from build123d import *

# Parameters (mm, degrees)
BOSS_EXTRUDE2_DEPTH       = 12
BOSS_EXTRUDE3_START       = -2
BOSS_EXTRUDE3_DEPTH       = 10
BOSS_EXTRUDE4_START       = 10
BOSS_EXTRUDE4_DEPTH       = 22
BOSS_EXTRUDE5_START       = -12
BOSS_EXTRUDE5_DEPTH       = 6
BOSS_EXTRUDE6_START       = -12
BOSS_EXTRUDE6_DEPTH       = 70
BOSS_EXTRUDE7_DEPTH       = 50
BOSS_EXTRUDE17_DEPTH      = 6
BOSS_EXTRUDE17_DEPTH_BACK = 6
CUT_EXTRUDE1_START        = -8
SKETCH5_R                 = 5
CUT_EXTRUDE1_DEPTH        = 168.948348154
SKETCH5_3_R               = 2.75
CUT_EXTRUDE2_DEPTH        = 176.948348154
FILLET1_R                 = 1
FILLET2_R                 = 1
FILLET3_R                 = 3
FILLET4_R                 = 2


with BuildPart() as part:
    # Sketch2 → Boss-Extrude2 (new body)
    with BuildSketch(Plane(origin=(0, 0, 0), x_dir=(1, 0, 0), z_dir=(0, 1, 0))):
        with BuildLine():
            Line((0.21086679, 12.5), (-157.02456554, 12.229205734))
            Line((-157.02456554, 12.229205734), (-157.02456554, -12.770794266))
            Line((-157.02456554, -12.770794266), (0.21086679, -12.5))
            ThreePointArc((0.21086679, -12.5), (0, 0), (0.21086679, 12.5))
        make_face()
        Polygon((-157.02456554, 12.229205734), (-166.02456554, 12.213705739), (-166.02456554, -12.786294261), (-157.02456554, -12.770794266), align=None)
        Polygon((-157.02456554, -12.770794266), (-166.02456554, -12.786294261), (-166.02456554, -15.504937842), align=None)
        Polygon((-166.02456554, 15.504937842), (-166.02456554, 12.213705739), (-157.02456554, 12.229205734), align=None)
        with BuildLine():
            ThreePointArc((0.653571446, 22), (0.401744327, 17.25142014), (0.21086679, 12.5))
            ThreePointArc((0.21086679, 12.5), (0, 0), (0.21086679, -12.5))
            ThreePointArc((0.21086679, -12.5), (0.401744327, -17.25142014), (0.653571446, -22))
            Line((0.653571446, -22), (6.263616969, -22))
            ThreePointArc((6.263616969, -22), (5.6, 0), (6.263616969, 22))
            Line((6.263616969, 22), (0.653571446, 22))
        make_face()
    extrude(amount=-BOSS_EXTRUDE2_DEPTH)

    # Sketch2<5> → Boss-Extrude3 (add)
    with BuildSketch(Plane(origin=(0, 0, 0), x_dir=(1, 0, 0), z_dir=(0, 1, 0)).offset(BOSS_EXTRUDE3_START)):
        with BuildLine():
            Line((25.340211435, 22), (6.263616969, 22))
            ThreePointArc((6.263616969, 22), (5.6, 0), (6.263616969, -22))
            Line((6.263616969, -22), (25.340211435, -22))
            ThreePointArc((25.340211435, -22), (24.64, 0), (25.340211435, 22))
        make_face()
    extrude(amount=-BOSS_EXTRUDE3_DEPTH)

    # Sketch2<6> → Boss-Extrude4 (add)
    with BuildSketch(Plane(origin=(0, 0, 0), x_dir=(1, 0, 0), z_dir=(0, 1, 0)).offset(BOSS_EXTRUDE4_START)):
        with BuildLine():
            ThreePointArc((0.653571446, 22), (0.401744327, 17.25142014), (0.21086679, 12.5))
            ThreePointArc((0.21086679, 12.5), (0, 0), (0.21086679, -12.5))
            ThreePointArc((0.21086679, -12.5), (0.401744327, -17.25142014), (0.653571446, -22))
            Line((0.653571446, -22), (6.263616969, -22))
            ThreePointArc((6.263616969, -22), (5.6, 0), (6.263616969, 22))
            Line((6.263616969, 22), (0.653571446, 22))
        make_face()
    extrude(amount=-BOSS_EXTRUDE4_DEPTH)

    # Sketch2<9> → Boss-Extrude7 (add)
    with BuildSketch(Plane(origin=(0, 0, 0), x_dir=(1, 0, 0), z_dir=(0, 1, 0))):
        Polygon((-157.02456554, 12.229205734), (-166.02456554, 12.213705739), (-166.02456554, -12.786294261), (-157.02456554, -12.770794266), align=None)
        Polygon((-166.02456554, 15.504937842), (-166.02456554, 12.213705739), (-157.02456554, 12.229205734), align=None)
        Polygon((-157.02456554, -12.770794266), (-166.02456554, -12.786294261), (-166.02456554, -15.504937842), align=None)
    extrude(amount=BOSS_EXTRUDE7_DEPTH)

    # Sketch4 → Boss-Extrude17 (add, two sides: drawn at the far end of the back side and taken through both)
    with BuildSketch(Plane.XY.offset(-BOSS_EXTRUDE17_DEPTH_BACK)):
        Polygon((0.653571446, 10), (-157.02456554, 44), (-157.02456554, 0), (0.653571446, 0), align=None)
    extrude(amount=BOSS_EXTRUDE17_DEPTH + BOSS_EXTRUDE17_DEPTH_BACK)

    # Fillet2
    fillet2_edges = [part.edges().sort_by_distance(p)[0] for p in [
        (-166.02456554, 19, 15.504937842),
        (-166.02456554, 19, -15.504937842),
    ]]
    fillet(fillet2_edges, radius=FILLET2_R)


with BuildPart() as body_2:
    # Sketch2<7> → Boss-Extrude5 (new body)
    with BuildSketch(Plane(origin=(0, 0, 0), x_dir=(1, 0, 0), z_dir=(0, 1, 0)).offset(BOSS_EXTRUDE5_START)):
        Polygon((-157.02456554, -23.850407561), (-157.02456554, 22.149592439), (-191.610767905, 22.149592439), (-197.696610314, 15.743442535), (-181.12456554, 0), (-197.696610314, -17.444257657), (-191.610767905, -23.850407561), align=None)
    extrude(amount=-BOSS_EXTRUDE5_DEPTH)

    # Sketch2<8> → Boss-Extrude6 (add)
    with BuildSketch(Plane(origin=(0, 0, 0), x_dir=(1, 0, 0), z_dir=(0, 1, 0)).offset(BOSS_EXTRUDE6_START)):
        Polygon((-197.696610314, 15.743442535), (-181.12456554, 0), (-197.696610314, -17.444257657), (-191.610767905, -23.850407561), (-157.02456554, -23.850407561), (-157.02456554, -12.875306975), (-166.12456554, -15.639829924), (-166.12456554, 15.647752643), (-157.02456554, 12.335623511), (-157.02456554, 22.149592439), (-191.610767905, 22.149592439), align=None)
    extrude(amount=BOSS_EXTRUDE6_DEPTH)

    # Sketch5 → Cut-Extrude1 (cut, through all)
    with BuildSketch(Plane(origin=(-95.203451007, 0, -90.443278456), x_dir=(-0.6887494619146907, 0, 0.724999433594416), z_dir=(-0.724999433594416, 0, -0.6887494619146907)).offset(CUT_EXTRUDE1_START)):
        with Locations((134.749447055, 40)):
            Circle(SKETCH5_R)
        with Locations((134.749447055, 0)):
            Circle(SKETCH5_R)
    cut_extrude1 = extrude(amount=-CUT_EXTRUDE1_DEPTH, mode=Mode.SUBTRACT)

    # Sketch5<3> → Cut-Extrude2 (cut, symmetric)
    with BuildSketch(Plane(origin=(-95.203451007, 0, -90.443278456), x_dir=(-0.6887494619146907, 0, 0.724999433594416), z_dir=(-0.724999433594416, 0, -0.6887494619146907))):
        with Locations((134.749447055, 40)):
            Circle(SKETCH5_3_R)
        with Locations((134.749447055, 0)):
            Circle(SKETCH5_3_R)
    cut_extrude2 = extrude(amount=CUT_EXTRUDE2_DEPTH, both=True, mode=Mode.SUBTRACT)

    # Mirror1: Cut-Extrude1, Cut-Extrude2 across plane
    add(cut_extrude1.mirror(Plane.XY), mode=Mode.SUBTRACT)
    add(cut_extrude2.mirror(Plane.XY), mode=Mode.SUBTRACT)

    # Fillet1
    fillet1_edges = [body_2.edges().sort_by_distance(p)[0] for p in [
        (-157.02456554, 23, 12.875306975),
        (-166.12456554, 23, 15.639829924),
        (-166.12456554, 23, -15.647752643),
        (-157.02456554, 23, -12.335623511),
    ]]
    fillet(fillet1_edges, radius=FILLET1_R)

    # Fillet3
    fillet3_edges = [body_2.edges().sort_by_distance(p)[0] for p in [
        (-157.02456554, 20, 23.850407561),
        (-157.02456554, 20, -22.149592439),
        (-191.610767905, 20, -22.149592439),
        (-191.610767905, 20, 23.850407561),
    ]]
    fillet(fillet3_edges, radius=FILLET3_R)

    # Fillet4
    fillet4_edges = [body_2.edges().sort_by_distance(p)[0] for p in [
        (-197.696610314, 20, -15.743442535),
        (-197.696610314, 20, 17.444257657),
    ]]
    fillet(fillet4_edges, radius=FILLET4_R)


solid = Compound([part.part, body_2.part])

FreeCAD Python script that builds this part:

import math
import FreeCAD as App
import Part
import Sketcher
Q = App.Units.Quantity


def edges_at(feature, points):
    """Names of the edges that pass closest to the given points."""
    edges = feature.Shape.Edges
    near = lambda p: min(range(len(edges)), key=lambda i: edges[i].distToShape(Part.Vertex(*p))[0])
    return sorted({f"Edge{near(p) + 1}" for p in points})

doc = App.newDocument("Part")
body = doc.addObject("PartDesign::Body", "Body")

# Sketch on XZ plane
sketch1 = body.newObject("Sketcher::SketchObject", "Sketch")
sketch1.AttachmentSupport = (doc.getObject("XZ_Plane"), [""])
sketch1.MapMode = "FlatFace"
sketch1.addGeometry([
    Part.LineSegment(App.Vector(0, -12, 0), App.Vector(-157, -12, 0)),  # 0
    Part.LineSegment(App.Vector(-157, -12, 0), App.Vector(-166, -16, 0)),  # 1
    Part.LineSegment(App.Vector(-166, -16, 0), App.Vector(-166, 16, 0)),  # 2
    Part.LineSegment(App.Vector(-166, 16, 0), App.Vector(-157, 13, 0)),  # 3
    Part.LineSegment(App.Vector(-157, 13, 0), App.Vector(0, 12, 0)),  # 4
    Part.ArcOfCircle(Part.Circle(App.Vector(371, 0, 0), App.Vector(0, 0, 1), 371), math.radians(176.6), math.radians(178.07)),  # 5
    Part.LineSegment(App.Vector(1, 22, 0), App.Vector(6, 22, 0)),  # 6
    Part.ArcOfCircle(Part.Circle(App.Vector(371, 0, 0), App.Vector(0, 0, 1), 365), math.radians(176.54), math.radians(183.46)),  # 7
    Part.LineSegment(App.Vector(6, -22, 0), App.Vector(1, -22, 0)),  # 8
    Part.ArcOfCircle(Part.Circle(App.Vector(371, 0, 0), App.Vector(0, 0, 1), 371), math.radians(-178.07), math.radians(-176.6)),  # 9
], False)
sketch1.addConstraint([
    Sketcher.Constraint("Coincident", 0, 2, 1, 1),
    Sketcher.Constraint("Coincident", 1, 2, 2, 1),
    Sketcher.Constraint("Coincident", 2, 2, 3, 1),
    Sketcher.Constraint("Coincident", 3, 2, 4, 1),
    Sketcher.Constraint("Coincident", 4, 2, 5, 2),
    Sketcher.Constraint("Coincident", 5, 1, 6, 1),
    Sketcher.Constraint("Coincident", 6, 2, 7, 1),
    Sketcher.Constraint("Coincident", 7, 2, 8, 1),
    Sketcher.Constraint("Coincident", 8, 2, 9, 2),
    Sketcher.Constraint("Coincident", 9, 1, 0, 1),
    Sketcher.Constraint("Vertical", 2),
    Sketcher.Constraint("Horizontal", 6),
    Sketcher.Constraint("Horizontal", 8),
    Sketcher.Constraint("Coincident", 7, 3, 5, 3),
    Sketcher.Constraint("Coincident", 9, 3, 5, 3),
    Sketcher.Constraint("Equal", 5, 9),
    Sketcher.Constraint("Symmetric", 6, 2, 7, 2, -1),
    Sketcher.Constraint("Parallel", 0, 4),
    Sketcher.Constraint("Vertical", 0, 2, 3, 2),
    Sketcher.Constraint("Vertical", 4, 2, 9, 1),
    Sketcher.Constraint("Radius", 7, 365.0),
    Sketcher.Constraint("Angle", 1, Q("-160 deg")),
    Sketcher.Constraint("DistanceY", -1, 1, 6, 2, 22.0),
    Sketcher.Constraint("DistanceX", 1, 2, 0, 2, 9.0),
    Sketcher.Constraint("DistanceY", 0, 2, 3, 2, 25.0),
    Sketcher.Constraint("DistanceX", -1, 1, 7, 3, 370.6),
    Sketcher.Constraint("Radius", 5, 370.599996),
    Sketcher.Constraint("DistanceY", 2, 1, 2, 2, 31.009876),
    Sketcher.Constraint("DistanceX", 0, 2, 9, 3, 527.624562),
    Sketcher.Constraint("DistanceY", 1, 2, 5, 3, 15.504938),
])
pad1 = body.newObject("PartDesign::Pad", "Pad")
pad1.Profile = sketch1
pad1.Length = 12

# Sketch on XZ plane
sketch2 = body.newObject("Sketcher::SketchObject", "Sketch001")
sketch2.AttachmentSupport = (doc.getObject("XZ_Plane"), [""])
sketch2.MapMode = "FlatFace"
sketch2.AttachmentOffset = App.Placement(App.Vector(0, 0, 2), App.Rotation())
sketch2.addGeometry([
    Part.LineSegment(App.Vector(25, -22, 0), App.Vector(6, -22, 0)),
    Part.ArcOfCircle(Part.Circle(App.Vector(371, 0, 0), App.Vector(0, 0, 1), 365), math.radians(176.54), math.radians(183.46)),
    Part.LineSegment(App.Vector(6, 22, 0), App.Vector(25, 22, 0)),
    Part.ArcOfCircle(Part.Circle(App.Vector(371, 0, 0), App.Vector(0, 0, 1), 346), math.radians(176.35), math.radians(183.65)),
], False)
sketch2.addConstraint([
    Sketcher.Constraint("Coincident", 0, 2, 1, 2),
    Sketcher.Constraint("Coincident", 1, 1, 2, 1),
    Sketcher.Constraint("Coincident", 2, 2, 3, 1),
    Sketcher.Constraint("Coincident", 3, 2, 0, 1),
    Sketcher.Constraint("Horizontal", 0),
    Sketcher.Constraint("Horizontal", 2),
    Sketcher.Constraint("Coincident", 3, 3, 1, 3),
    Sketcher.Constraint("Symmetric", 0, 2, 1, 1, -1),
    Sketcher.Constraint("Radius", 1, 365.0),
    Sketcher.Constraint("Radius", 3, 345.96),
    Sketcher.Constraint("DistanceY", 0, 2, -1, 1, 22.0),
    Sketcher.Constraint("DistanceX", -1, 1, 1, 3, 370.6),
])
pad2 = body.newObject("PartDesign::Pad", "Pad001")
pad2.Profile = sketch2
pad2.Length = 10

# Sketch on XZ plane
sketch3 = body.newObject("Sketcher::SketchObject", "Sketch002")
sketch3.AttachmentSupport = (doc.getObject("XZ_Plane"), [""])
sketch3.MapMode = "FlatFace"
sketch3.AttachmentOffset = App.Placement(App.Vector(0, 0, -10), App.Rotation())
sketch3.addGeometry([
    Part.ArcOfCircle(Part.Circle(App.Vector(371, 0, 0), App.Vector(0, 0, 1), 371), math.radians(-178.07), math.radians(-176.6)),  # 0
    Part.ArcOfCircle(Part.Circle(App.Vector(371, 0, 0), App.Vector(0, 0, 1), 371), math.radians(178.07), math.radians(181.93)),  # 1
    Part.ArcOfCircle(Part.Circle(App.Vector(371, 0, 0), App.Vector(0, 0, 1), 371), math.radians(176.6), math.radians(178.07)),  # 2
    Part.LineSegment(App.Vector(1, 22, 0), App.Vector(6, 22, 0)),  # 3
    Part.ArcOfCircle(Part.Circle(App.Vector(371, 0, 0), App.Vector(0, 0, 1), 365), math.radians(176.54), math.radians(183.46)),  # 4
    Part.LineSegment(App.Vector(6, -22, 0), App.Vector(1, -22, 0)),  # 5
], False)
sketch3.addConstraint([
    Sketcher.Constraint("Tangent", 0, 1, 1, 2),
    Sketcher.Constraint("Tangent", 1, 1, 2, 2),
    Sketcher.Constraint("Coincident", 2, 1, 3, 1),
    Sketcher.Constraint("Coincident", 3, 2, 4, 1),
    Sketcher.Constraint("Coincident", 4, 2, 5, 1),
    Sketcher.Constraint("Coincident", 5, 2, 0, 2),
    Sketcher.Constraint("Horizontal", 3),
    Sketcher.Constraint("Horizontal", 5),
    Sketcher.Constraint("Coincident", 2, 3, 0, 3),
    Sketcher.Constraint("Coincident", 4, 3, 0, 3),
    Sketcher.Constraint("PointOnObject", 0, 3, -1),
    Sketcher.Constraint("Vertical", 0, 1, 1, 1),
    Sketcher.Constraint("Vertical", 3, 2, 4, 2),
    Sketcher.Constraint("Radius", 4, 365.0),
    Sketcher.Constraint("Radius", 1, 370.6),
    Sketcher.Constraint("DistanceY", -1, 1, 3, 2, 22.0),
    Sketcher.Constraint("DistanceY", 0, 1, 1, 1, 25.0),
    Sketcher.Constraint("DistanceX", -1, 1, 1, 3, 370.6),
])
pad3 = body.newObject("PartDesign::Pad", "Pad002")
pad3.Profile = sketch3
pad3.Length = 22

# Sketch on XZ plane
sketch4 = body.newObject("Sketcher::SketchObject", "Sketch003")
sketch4.AttachmentSupport = (doc.getObject("XZ_Plane"), [""])
sketch4.MapMode = "FlatFace"
sketch4.addGeometry([
    Part.LineSegment(App.Vector(-157, 13, 0), App.Vector(-157, -12, 0)),
    Part.LineSegment(App.Vector(-157, -12, 0), App.Vector(-166, -16, 0)),
    Part.LineSegment(App.Vector(-166, -16, 0), App.Vector(-166, 16, 0)),
    Part.LineSegment(App.Vector(-166, 16, 0), App.Vector(-157, 13, 0)),
], False)
sketch4.addConstraint([
    Sketcher.Constraint("Coincident", 0, 2, 1, 1),
    Sketcher.Constraint("Coincident", 1, 2, 2, 1),
    Sketcher.Constraint("Coincident", 2, 2, 3, 1),
    Sketcher.Constraint("Coincident", 3, 2, 0, 1),
    Sketcher.Constraint("Vertical", 0),
    Sketcher.Constraint("Vertical", 2),
    Sketcher.Constraint("DistanceY", 0, 2, 0, 1, 25.0),
    Sketcher.Constraint("Angle", 1, Q("-160 deg")),
    Sketcher.Constraint("DistanceX", 1, 2, 0, 2, 9.0),
    Sketcher.Constraint("DistanceY", 2, 1, 2, 2, 31.009876),
    Sketcher.Constraint("DistanceX", 0, 2, -1, 1, 157.024566),
    Sketcher.Constraint("DistanceY", 0, 2, -1, 1, 12.229206),
])
pad4 = body.newObject("PartDesign::Pad", "Pad003")
pad4.Profile = sketch4
pad4.Length = 50
pad4.Reversed = True

# Sketch on XY plane
sketch5 = body.newObject("Sketcher::SketchObject", "Sketch004")
sketch5.AttachmentSupport = (doc.getObject("XY_Plane"), [""])
sketch5.MapMode = "FlatFace"
sketch5.addGeometry([
    Part.LineSegment(App.Vector(1, 10, 0), App.Vector(-157, 44, 0)),
    Part.LineSegment(App.Vector(-157, 44, 0), App.Vector(-157, 0, 0)),
    Part.LineSegment(App.Vector(-157, 0, 0), App.Vector(1, 0, 0)),
    Part.LineSegment(App.Vector(1, 0, 0), App.Vector(1, 10, 0)),
], False)
sketch5.addConstraint([
    Sketcher.Constraint("Coincident", 0, 2, 1, 1),
    Sketcher.Constraint("Coincident", 1, 2, 2, 1),
    Sketcher.Constraint("Coincident", 2, 2, 3, 1),
    Sketcher.Constraint("Coincident", 3, 2, 0, 1),
    Sketcher.Constraint("Vertical", 1),
    Sketcher.Constraint("Horizontal", 2),
    Sketcher.Constraint("Vertical", 3),
    Sketcher.Constraint("PointOnObject", 1, 2, -1),
    Sketcher.Constraint("DistanceY", 1, 2, 1, 1, 44.0),
    Sketcher.Constraint("DistanceY", 3, 1, 3, 2, 10.0),
    Sketcher.Constraint("DistanceX", 2, 1, 2, 2, 157.678137),
    Sketcher.Constraint("DistanceX", -1, 1, 2, 2, 0.653571),
])
pad5 = body.newObject("PartDesign::Pad", "Pad004")
pad5.Profile = sketch5
pad5.Type = "TwoLengths"
pad5.Length = 6
pad5.Length2 = 6
doc.recompute()

fillet = body.newObject("PartDesign::Fillet", "Fillet")
fillet.Base = (pad5, edges_at(pad5, [(-166.025, 19, 15.505), (-166.025, 19, -15.505)]))
fillet.Radius = 1
body2 = doc.addObject("PartDesign::Body", "Body001")

# Sketch on XZ plane
sketch6 = body2.newObject("Sketcher::SketchObject", "Sketch005")
sketch6.AttachmentSupport = (doc.getObject("XZ_Plane001"), [""])
sketch6.MapMode = "FlatFace"
sketch6.AttachmentOffset = App.Placement(App.Vector(0, 0, 12), App.Rotation())
sketch6.addGeometry([
    Part.LineSegment(App.Vector(-157, 24, 0), App.Vector(-157, -22, 0)),  # 0
    Part.LineSegment(App.Vector(-157, -22, 0), App.Vector(-192, -22, 0)),  # 1
    Part.LineSegment(App.Vector(-192, -22, 0), App.Vector(-198, -16, 0)),  # 2
    Part.LineSegment(App.Vector(-198, -16, 0), App.Vector(-181, 0, 0)),  # 3
    Part.LineSegment(App.Vector(-181, 0, 0), App.Vector(-198, 17, 0)),  # 4
    Part.LineSegment(App.Vector(-198, 17, 0), App.Vector(-192, 24, 0)),  # 5
    Part.LineSegment(App.Vector(-192, 24, 0), App.Vector(-157, 24, 0)),  # 6
], False)
sketch6.addConstraint([
    Sketcher.Constraint("Coincident", 0, 2, 1, 1),
    Sketcher.Constraint("Coincident", 1, 2, 2, 1),
    Sketcher.Constraint("Coincident", 2, 2, 3, 1),
    Sketcher.Constraint("Coincident", 3, 2, 4, 1),
    Sketcher.Constraint("Coincident", 4, 2, 5, 1),
    Sketcher.Constraint("Coincident", 5, 2, 6, 1),
    Sketcher.Constraint("Coincident", 6, 2, 0, 1),
    Sketcher.Constraint("Vertical", 0),
    Sketcher.Constraint("Horizontal", 1),
    Sketcher.Constraint("Horizontal", 6),
    Sketcher.Constraint("PointOnObject", 3, 2, -1),
    Sketcher.Constraint("Perpendicular", 2, 3),
    Sketcher.Constraint("Perpendicular", 3, 4),
    Sketcher.Constraint("Vertical", 2, 2, 4, 2),
    Sketcher.Constraint("Vertical", 1, 2, 5, 2),
    Sketcher.Constraint("Equal", 2, 5),
    Sketcher.Constraint("DistanceY", 0, 2, 0, 1, 46.0),
    Sketcher.Constraint("DistanceX", 3, 2, 0, 2, 24.1),
    Sketcher.Constraint("DistanceY", 2, 2, 4, 2, 33.1877),
    Sketcher.Constraint("Distance", 3, 22.858011),
    Sketcher.Constraint("DistanceX", 2, 2, -1, 1, 197.69661),
])
pad6 = body2.newObject("PartDesign::Pad", "Pad005")
pad6.Profile = sketch6
pad6.Length = 6

# Sketch on XZ plane
sketch7 = body2.newObject("Sketcher::SketchObject", "Sketch006")
sketch7.AttachmentSupport = (doc.getObject("XZ_Plane001"), [""])
sketch7.MapMode = "FlatFace"
sketch7.AttachmentOffset = App.Placement(App.Vector(0, 0, 12), App.Rotation())
sketch7.addGeometry([
    Part.LineSegment(App.Vector(-198, -16, 0), App.Vector(-181, 0, 0)),  # 0
    Part.LineSegment(App.Vector(-181, 0, 0), App.Vector(-198, 17, 0)),  # 1
    Part.LineSegment(App.Vector(-198, 17, 0), App.Vector(-192, 24, 0)),  # 2
    Part.LineSegment(App.Vector(-192, 24, 0), App.Vector(-157, 24, 0)),  # 3
    Part.LineSegment(App.Vector(-157, 24, 0), App.Vector(-157, 13, 0)),  # 4
    Part.LineSegment(App.Vector(-157, 13, 0), App.Vector(-166, 16, 0)),  # 5
    Part.LineSegment(App.Vector(-166, 16, 0), App.Vector(-166, -16, 0)),  # 6
    Part.LineSegment(App.Vector(-166, -16, 0), App.Vector(-157, -12, 0)),  # 7
    Part.LineSegment(App.Vector(-157, -12, 0), App.Vector(-157, -22, 0)),  # 8
    Part.LineSegment(App.Vector(-157, -22, 0), App.Vector(-192, -22, 0)),  # 9
    Part.LineSegment(App.Vector(-192, -22, 0), App.Vector(-198, -16, 0)),  # 10
], False)
sketch7.addConstraint([
    Sketcher.Constraint("Coincident", 0, 2, 1, 1),
    Sketcher.Constraint("Coincident", 1, 2, 2, 1),
    Sketcher.Constraint("Coincident", 2, 2, 3, 1),
    Sketcher.Constraint("Coincident", 3, 2, 4, 1),
    Sketcher.Constraint("Coincident", 4, 2, 5, 1),
    Sketcher.Constraint("Coincident", 5, 2, 6, 1),
    Sketcher.Constraint("Coincident", 6, 2, 7, 1),
    Sketcher.Constraint("Coincident", 7, 2, 8, 1),
    Sketcher.Constraint("Coincident", 8, 2, 9, 1),
    Sketcher.Constraint("Coincident", 9, 2, 10, 1),
    Sketcher.Constraint("Coincident", 10, 2, 0, 1),
    Sketcher.Constraint("Horizontal", 3),
    Sketcher.Constraint("Vertical", 4),
    Sketcher.Constraint("Vertical", 6),
    Sketcher.Constraint("Vertical", 8),
    Sketcher.Constraint("Horizontal", 9),
    Sketcher.Constraint("PointOnObject", 0, 2, -1),
    Sketcher.Constraint("Perpendicular", 0, 1),
    Sketcher.Constraint("Parallel", 1, 10),
    Sketcher.Constraint("Vertical", 4, 2, 7, 2),
    Sketcher.Constraint("Vertical", 2, 2, 9, 2),
    Sketcher.Constraint("Vertical", 1, 2, 10, 2),
    Sketcher.Constraint("Equal", 2, 10),
    Sketcher.Constraint("Angle", 7, Q("20 deg")),
    Sketcher.Constraint("DistanceX", 0, 2, 5, 2, 15.0),
    Sketcher.Constraint("DistanceX", 0, 2, 3, 2, 24.1),
    Sketcher.Constraint("DistanceY", 4, 2, 4, 1, 10.975101),
    Sketcher.Constraint("DistanceY", 8, 2, 8, 1, 9.813969),
    Sketcher.Constraint("DistanceY", 8, 2, 4, 2, 35.024899),
    Sketcher.Constraint("DistanceY", 10, 2, 1, 2, 33.1877),
    Sketcher.Constraint("Distance", 0, 22.858011),
    Sketcher.Constraint("DistanceY", 6, 2, 6, 1, 31.287583),
    Sketcher.Constraint("DistanceX", 1, 2, -1, 1, 197.69661),
])
pad7 = body2.newObject("PartDesign::Pad", "Pad006")
pad7.Profile = sketch7
pad7.Length = 70
pad7.Reversed = True

# Sketch on an angled plane
sketch8 = body2.newObject("Sketcher::SketchObject", "Sketch007")
sketch8.Placement = App.Placement(App.Vector(-89.403456, 0, -84.933283), App.Rotation(App.Vector(-0.688749462, 0, 0.724999434), App.Vector(0, 1.000000001, 0), App.Vector(-0.724999434, 0, -0.688749462), "ZXY"))
sketch8.addGeometry([
    Part.Circle(App.Vector(135, 40, 0), App.Vector(0, 0, 1), 5),
    Part.Circle(App.Vector(135, 0, 0), App.Vector(0, 0, 1), 5),
], False)
sketch8.addConstraint([
    Sketcher.Constraint("Equal", 0, 1),
    Sketcher.Constraint("PointOnObject", 1, 3, -1),
    Sketcher.Constraint("Vertical", 0, 3, 1, 3),
    Sketcher.Constraint("Diameter", 0, 10.0),
    Sketcher.Constraint("DistanceY", -1, 1, 0, 3, 40.0),
    Sketcher.Constraint("DistanceX", -1, 1, 0, 3, 134.749447),
])
pocket1 = body2.newObject("PartDesign::Pocket", "Pocket")
pocket1.Profile = sketch8
pocket1.Type = "ThroughAll"

# Sketch on an angled plane
sketch9 = body2.newObject("Sketcher::SketchObject", "Sketch008")
sketch9.Placement = App.Placement(App.Vector(-95.203451, 0, -90.443278), App.Rotation(App.Vector(-0.688749462, 0, 0.724999434), App.Vector(0, 1.000000001, 0), App.Vector(-0.724999434, 0, -0.688749462), "ZXY"))
sketch9.addGeometry([
    Part.Circle(App.Vector(134.7, 40, 0), App.Vector(0, 0, 1), 2.8),
    Part.Circle(App.Vector(134.7, 0, 0), App.Vector(0, 0, 1), 2.8),
], False)
sketch9.addConstraint([
    Sketcher.Constraint("Equal", 0, 1),
    Sketcher.Constraint("PointOnObject", 1, 3, -1),
    Sketcher.Constraint("Vertical", 0, 3, 1, 3),
    Sketcher.Constraint("Diameter", 0, 5.5),
    Sketcher.Constraint("DistanceY", -1, 1, 0, 3, 40.0),
    Sketcher.Constraint("DistanceX", -1, 1, 0, 3, 134.749447),
])
pocket2 = body2.newObject("PartDesign::Pocket", "Pocket001")
pocket2.Profile = sketch9
pocket2.Length = 353.896696
pocket2.Midplane = True
doc.recompute()

mirrored = body2.newObject("PartDesign::Mirrored", "Mirrored")
mirrored.Originals = [pocket1, pocket2]
mirrored.MirrorPlane = (doc.getObject("XY_Plane001"), [""])
body2.Tip = mirrored
doc.recompute()

fillet2 = body2.newObject("PartDesign::Fillet", "Fillet001")
fillet2.Base = (mirrored, edges_at(mirrored, [
    (-157.025, 23, 12.875),
    (-166.125, 23, 15.64),
    (-166.125, 23, -15.648),
    (-157.025, 23, -12.336),
]))
fillet2.Radius = 1
doc.recompute()

fillet3 = body2.newObject("PartDesign::Fillet", "Fillet002")
fillet3.Base = (fillet2, edges_at(fillet2, [
    (-157.025, 20, 23.85),
    (-157.025, 20, -22.15),
    (-191.611, 20, -22.15),
    (-191.611, 20, 23.85),
]))
fillet3.Radius = 3
doc.recompute()

fillet4 = body2.newObject("PartDesign::Fillet", "Fillet003")
fillet4.Base = (fillet3, edges_at(fillet3, [(-197.697, 20, -15.743), (-197.697, 20, 17.444)]))
fillet4.Radius = 2

doc.recompute()
